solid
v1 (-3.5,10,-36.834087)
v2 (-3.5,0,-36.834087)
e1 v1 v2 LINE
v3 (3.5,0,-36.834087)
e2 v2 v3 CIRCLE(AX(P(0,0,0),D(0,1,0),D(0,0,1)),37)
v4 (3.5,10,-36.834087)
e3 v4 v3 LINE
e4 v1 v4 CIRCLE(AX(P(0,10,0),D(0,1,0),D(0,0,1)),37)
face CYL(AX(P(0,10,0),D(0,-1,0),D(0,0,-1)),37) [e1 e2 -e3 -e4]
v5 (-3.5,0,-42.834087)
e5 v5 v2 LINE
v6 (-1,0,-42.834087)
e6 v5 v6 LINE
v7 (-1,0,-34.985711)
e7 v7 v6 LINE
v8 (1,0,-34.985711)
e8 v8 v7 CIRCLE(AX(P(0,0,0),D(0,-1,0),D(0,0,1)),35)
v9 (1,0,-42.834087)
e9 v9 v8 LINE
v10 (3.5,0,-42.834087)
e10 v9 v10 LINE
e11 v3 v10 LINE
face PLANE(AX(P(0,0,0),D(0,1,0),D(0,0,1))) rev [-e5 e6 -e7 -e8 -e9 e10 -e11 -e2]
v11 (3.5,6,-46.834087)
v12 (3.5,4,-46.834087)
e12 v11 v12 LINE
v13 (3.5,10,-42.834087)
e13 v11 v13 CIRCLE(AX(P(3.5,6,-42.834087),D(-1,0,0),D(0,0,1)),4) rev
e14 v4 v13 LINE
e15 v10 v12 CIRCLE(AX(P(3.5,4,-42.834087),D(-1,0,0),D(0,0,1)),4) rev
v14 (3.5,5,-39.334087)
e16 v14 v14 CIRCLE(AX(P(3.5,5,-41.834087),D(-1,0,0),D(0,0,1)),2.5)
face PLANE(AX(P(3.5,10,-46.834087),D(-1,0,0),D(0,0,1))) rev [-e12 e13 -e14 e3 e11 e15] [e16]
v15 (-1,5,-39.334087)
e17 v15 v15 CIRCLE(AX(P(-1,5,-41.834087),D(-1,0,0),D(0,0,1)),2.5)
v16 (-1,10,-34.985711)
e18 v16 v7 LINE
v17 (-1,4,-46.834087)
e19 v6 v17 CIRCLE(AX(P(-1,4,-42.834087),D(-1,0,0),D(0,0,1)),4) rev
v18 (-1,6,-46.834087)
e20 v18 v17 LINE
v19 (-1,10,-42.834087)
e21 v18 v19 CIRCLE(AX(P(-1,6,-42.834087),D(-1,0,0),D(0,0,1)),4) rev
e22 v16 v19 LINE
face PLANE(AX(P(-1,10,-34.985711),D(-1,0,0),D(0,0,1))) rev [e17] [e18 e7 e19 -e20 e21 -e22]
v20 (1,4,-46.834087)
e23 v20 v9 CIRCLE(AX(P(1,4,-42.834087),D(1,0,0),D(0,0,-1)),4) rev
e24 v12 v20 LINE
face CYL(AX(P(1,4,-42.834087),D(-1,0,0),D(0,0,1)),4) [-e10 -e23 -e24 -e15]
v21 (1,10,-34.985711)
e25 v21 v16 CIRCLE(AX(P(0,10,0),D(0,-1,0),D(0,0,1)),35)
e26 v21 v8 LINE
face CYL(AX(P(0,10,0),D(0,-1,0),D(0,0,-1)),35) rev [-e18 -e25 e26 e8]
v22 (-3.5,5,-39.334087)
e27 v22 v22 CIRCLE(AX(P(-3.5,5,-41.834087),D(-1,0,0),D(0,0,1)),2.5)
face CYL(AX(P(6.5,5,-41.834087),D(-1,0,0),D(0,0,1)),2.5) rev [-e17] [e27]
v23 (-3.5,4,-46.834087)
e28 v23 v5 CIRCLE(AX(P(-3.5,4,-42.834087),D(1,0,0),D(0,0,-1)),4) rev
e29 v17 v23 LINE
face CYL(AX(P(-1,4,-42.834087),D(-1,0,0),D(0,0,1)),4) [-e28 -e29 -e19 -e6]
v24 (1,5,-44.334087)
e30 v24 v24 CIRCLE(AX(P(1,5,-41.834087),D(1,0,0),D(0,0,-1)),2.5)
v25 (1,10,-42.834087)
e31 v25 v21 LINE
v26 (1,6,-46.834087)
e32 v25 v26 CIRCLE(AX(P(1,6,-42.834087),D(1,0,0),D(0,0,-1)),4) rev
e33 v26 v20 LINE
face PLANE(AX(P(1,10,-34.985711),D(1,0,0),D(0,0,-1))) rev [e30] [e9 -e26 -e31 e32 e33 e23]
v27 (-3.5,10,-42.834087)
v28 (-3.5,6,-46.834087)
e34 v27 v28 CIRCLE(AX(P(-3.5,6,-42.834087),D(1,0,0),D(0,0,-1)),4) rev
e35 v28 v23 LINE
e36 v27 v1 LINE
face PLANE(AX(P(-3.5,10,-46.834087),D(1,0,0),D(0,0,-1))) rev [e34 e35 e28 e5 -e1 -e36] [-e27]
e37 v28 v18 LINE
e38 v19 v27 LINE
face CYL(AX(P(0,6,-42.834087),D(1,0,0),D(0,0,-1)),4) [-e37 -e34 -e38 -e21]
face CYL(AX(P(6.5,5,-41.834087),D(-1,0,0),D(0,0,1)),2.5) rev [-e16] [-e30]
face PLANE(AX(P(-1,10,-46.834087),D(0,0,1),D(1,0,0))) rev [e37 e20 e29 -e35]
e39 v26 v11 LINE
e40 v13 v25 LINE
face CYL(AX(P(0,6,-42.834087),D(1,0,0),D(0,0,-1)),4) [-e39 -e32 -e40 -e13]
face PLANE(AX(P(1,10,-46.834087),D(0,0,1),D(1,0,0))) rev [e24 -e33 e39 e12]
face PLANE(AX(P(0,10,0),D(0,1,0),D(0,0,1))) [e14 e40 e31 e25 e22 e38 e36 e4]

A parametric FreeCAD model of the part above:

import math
import FreeCAD as App
import Part
import Sketcher


def edges_at(feature, points):
    """Names of the edges that pass closest to the given points."""
    edges = feature.Shape.Edges
    near = lambda p: min(range(len(edges)), key=lambda i: edges[i].distToShape(Part.Vertex(*p))[0])
    return sorted({f"Edge{near(p) + 1}" for p in points})

doc = App.newDocument("Part")
body = doc.addObject("PartDesign::Body", "Body")

sketch1 = doc.addObject("Sketcher::SketchObject", "Sketch")
body.addObject(sketch1)
sketch1.AttachmentSupport = (doc.XZ_Plane, [""])
sketch1.MapMode = "FlatFace"
sketch1.addGeometry([
    Part.LineSegment(App.Vector(-1, -35, 0), App.Vector(-1, -46.8, 0)),
    Part.LineSegment(App.Vector(-1, -46.8, 0), App.Vector(-3.5, -46.8, 0)),
    Part.LineSegment(App.Vector(-3.5, -46.8, 0), App.Vector(-3.5, -36.8, 0)),
    Part.ArcOfCircle(Part.Circle(App.Vector(0, 0, 0), App.Vector(0, 0, 1), 37), math.radians(-85), math.radians(265)),
    Part.LineSegment(App.Vector(3.5, -36.8, 0), App.Vector(3.5, -46.8, 0)),
    Part.LineSegment(App.Vector(3.5, -46.8, 0), App.Vector(1, -46.8, 0)),
    Part.LineSegment(App.Vector(1, -46.8, 0), App.Vector(1, -35, 0)),
    Part.ArcOfCircle(Part.Circle(App.Vector(0, 0, 0), App.Vector(0, 0, 1), 35), math.radians(-88), math.radians(268)),
], False)
sketch1.addConstraint([
    Sketcher.Constraint("Coincident", 0, 2, 1, 1),
    Sketcher.Constraint("Coincident", 1, 2, 2, 1),
    Sketcher.Constraint("Coincident", 2, 2, 3, 2),
    Sketcher.Constraint("Coincident", 3, 1, 4, 1),
    Sketcher.Constraint("Coincident", 4, 2, 5, 1),
    Sketcher.Constraint("Coincident", 5, 2, 6, 1),
    Sketcher.Constraint("Coincident", 6, 2, 7, 1),
    Sketcher.Constraint("Coincident", 7, 2, 0, 1),
    Sketcher.Constraint("Vertical", 0),
    Sketcher.Constraint("Horizontal", 1),
    Sketcher.Constraint("Vertical", 2),
    Sketcher.Constraint("Vertical", 4),
    Sketcher.Constraint("Horizontal", 5),
    Sketcher.Constraint("Vertical", 6),
    Sketcher.Constraint("Coincident", 3, 3, -1, 1),
    Sketcher.Constraint("Coincident", 7, 3, -1, 1),
    Sketcher.Constraint("Symmetric", 1, 2, 4, 2, -2),
    Sketcher.Constraint("Horizontal", 6, 2, 7, 2),
    Sketcher.Constraint("Radius", 3, 37.0),
    Sketcher.Constraint("Radius", 7, 35.0),
    Sketcher.Constraint("DistanceY", 2, 1, 2, 2, 10.0),
    Sketcher.Constraint("DistanceX", 1, 2, 1, 1, 2.5),
    Sketcher.Constraint("DistanceX", 0, 2, -1, 1, 1.0),
])
pad1 = doc.addObject("PartDesign::Pad", "Pad")
body.addObject(pad1)
pad1.Profile = sketch1
pad1.Length = 10
pad1.Reversed = True

sketch2 = doc.addObject("Sketcher::SketchObject", "Sketch001")
body.addObject(sketch2)
sketch2.AttachmentSupport = (doc.YZ_Plane, [""])
sketch2.MapMode = "FlatFace"
sketch2.AttachmentOffset = App.Placement(App.Vector(0, 0, -3.5), App.Rotation())
sketch2.addGeometry(Part.Circle(App.Vector(5, -41.8, 0), App.Vector(0, 0, 1), 2.5), False)
sketch2.addConstraint([
    Sketcher.Constraint("Diameter", 0, 5.0),
    Sketcher.Constraint("DistanceX", -1, 1, 0, 3, 5.0),
    Sketcher.Constraint("DistanceY", 0, 3, -1, 1, 41.834087),
])
pocket1 = doc.addObject("PartDesign::Pocket", "Pocket")
body.addObject(pocket1)
pocket1.Profile = sketch2
pocket1.Length = 10
pocket1.Reversed = True
doc.recompute()

fillet = doc.addObject("PartDesign::Fillet", "Fillet")
body.addObject(fillet)
fillet.Base = (pocket1, edges_at(pocket1, [
    (-2.25, 0, -46.834),
    (-2.25, 10, -46.834),
    (2.25, 10, -46.834),
    (2.25, 0, -46.834),
]))
fillet.Radius = 4

doc.recompute()
